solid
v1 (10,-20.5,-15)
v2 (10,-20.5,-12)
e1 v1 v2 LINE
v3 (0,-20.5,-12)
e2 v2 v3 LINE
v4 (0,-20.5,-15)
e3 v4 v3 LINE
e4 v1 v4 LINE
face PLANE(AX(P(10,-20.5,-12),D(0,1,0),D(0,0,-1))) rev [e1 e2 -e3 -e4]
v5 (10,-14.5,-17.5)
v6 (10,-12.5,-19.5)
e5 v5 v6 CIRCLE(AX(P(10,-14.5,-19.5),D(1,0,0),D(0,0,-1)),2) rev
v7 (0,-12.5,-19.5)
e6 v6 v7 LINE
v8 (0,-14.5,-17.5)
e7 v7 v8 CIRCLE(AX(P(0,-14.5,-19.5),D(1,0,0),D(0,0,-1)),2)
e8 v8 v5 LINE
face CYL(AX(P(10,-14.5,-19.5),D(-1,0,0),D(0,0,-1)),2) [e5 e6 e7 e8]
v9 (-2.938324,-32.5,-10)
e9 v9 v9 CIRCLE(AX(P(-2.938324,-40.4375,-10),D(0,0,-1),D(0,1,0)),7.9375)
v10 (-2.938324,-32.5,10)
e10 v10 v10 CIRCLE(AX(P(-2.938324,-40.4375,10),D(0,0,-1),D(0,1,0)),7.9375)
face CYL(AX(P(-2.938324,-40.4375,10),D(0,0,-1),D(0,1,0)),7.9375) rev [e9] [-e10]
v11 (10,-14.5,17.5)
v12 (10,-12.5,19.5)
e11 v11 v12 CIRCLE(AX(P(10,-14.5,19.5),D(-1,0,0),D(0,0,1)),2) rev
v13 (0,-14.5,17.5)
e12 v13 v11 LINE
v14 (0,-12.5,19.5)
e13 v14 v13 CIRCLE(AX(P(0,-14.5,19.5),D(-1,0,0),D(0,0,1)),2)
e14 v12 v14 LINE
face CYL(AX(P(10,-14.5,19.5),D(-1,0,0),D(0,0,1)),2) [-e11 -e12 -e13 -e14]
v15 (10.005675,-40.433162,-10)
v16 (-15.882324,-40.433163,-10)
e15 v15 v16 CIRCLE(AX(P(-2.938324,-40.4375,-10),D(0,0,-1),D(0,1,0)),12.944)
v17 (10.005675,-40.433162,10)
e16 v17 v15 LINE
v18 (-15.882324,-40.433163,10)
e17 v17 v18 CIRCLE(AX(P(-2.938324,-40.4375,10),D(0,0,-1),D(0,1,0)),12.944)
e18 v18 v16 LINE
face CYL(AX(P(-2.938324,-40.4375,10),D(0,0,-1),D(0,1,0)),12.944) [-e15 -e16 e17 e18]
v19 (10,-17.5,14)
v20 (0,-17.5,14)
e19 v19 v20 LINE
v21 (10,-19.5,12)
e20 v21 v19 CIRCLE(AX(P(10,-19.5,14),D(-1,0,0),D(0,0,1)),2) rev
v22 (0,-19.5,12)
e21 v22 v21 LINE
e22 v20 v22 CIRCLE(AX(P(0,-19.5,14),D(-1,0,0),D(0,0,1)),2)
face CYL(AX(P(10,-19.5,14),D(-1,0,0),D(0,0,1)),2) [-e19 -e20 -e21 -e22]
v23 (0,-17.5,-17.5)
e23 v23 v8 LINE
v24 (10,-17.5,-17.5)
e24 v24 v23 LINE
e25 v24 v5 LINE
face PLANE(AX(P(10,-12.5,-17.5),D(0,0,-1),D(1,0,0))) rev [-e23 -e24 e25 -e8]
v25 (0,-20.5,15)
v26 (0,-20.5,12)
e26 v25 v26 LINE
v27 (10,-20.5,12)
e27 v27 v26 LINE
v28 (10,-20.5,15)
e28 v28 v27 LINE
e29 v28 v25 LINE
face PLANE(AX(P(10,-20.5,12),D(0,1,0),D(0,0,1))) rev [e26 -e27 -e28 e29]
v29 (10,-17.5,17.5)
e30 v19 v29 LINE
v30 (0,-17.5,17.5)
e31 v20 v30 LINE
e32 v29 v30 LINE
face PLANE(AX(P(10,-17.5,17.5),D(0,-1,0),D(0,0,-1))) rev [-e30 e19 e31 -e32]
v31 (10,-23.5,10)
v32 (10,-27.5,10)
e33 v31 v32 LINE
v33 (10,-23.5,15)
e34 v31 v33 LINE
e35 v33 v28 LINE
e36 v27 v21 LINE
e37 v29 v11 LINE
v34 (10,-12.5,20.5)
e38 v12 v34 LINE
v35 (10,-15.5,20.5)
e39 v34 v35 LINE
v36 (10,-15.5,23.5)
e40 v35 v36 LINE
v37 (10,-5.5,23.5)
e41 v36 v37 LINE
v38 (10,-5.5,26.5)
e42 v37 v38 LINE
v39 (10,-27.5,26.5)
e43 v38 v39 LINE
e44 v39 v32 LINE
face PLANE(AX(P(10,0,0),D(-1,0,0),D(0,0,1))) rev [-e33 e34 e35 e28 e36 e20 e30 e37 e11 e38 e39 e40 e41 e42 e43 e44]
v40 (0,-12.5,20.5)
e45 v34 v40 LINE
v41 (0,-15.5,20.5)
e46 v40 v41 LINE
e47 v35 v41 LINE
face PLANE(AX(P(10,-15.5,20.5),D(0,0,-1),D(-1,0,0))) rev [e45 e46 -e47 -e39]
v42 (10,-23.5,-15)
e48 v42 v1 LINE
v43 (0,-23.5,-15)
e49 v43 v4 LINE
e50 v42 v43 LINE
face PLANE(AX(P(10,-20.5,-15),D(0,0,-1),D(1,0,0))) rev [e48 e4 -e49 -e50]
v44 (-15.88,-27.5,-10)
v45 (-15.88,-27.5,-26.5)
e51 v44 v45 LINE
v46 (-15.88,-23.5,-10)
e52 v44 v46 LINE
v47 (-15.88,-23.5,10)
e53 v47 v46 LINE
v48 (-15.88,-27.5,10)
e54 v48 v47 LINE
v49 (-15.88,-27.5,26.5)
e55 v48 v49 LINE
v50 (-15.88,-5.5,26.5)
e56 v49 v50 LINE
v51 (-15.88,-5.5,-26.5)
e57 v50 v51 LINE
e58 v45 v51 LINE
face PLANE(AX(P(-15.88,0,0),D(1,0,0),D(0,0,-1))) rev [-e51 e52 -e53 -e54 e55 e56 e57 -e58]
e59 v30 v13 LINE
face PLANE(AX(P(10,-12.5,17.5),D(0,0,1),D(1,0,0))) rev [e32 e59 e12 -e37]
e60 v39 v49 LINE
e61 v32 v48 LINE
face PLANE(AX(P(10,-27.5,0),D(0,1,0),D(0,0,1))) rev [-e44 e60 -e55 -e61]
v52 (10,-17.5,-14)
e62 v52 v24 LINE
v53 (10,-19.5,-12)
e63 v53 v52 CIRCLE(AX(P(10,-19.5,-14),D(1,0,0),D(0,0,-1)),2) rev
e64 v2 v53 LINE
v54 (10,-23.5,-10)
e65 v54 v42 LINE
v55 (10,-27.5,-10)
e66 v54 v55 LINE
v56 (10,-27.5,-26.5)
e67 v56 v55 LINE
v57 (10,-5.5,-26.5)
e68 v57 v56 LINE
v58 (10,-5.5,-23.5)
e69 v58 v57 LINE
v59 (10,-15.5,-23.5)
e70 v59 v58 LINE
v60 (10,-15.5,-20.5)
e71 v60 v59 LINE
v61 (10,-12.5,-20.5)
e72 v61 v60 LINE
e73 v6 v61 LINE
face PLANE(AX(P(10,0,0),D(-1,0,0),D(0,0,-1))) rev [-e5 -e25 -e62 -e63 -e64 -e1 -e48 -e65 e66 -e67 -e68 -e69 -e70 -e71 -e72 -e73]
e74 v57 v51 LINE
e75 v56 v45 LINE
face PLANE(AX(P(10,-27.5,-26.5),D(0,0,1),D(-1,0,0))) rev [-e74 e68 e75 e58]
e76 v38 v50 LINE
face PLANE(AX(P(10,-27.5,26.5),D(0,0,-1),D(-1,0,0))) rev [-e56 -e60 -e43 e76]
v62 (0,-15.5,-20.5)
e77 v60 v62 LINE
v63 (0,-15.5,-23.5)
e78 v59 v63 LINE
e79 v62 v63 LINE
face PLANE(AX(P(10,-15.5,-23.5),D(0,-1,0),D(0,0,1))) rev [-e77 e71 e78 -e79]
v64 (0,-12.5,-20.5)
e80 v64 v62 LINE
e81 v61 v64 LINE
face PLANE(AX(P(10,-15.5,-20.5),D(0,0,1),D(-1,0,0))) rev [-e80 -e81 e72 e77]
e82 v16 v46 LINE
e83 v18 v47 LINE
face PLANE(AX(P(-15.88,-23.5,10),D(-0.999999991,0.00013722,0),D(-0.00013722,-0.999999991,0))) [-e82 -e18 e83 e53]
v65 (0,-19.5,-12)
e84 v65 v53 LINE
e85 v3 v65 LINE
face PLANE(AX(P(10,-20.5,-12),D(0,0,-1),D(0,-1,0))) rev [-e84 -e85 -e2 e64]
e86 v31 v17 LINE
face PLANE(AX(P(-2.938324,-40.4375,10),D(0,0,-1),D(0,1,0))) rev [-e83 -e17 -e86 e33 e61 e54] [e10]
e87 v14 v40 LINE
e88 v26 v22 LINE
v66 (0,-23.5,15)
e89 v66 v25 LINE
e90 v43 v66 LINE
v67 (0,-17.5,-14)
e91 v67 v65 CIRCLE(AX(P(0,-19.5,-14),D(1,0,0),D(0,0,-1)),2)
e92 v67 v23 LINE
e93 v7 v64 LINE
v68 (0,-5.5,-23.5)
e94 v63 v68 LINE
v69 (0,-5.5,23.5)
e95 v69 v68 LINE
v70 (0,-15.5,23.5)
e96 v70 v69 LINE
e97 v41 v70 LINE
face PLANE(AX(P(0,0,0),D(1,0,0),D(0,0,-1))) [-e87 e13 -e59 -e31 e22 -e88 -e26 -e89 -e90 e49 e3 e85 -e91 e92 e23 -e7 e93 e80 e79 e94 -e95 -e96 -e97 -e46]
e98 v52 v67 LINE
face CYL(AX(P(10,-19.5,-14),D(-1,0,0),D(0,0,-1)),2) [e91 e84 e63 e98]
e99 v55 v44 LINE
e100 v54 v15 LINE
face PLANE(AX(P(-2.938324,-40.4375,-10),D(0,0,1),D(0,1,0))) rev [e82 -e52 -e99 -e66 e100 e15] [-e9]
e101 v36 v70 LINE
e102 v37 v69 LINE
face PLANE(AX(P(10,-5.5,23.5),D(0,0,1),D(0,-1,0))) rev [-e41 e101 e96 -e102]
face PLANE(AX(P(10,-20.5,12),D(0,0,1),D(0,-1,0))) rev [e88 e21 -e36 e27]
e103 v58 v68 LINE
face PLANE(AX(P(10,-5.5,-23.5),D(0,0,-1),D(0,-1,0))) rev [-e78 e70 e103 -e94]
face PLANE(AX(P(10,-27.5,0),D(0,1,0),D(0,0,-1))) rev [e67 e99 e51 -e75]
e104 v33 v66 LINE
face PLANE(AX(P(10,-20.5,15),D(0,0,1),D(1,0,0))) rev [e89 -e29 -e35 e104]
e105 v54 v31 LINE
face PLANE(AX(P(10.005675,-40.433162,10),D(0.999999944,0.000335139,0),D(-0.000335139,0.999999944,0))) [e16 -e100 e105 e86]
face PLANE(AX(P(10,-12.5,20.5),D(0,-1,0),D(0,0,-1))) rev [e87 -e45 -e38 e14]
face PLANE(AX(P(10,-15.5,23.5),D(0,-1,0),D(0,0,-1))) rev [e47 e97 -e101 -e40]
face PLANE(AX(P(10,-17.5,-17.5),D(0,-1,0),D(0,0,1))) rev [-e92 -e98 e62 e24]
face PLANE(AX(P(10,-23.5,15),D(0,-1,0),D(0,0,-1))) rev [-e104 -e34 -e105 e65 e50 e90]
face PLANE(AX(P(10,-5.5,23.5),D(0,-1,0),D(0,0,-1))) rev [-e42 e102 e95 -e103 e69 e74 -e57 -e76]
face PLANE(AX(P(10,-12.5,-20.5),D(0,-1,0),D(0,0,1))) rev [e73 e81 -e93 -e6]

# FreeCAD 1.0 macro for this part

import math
import FreeCAD as App
import Part
import Sketcher
from FreeCAD import Vector
Q = App.Units.Quantity


def edges_at(feature, points):
    """Names of the edges that pass closest to the given points."""
    edges = feature.Shape.Edges
    near = lambda p: min(range(len(edges)), key=lambda i: edges[i].distToShape(Part.Vertex(*p))[0])
    return sorted({f"Edge{near(p) + 1}" for p in points})

doc = App.newDocument("Part")
body = doc.addObject("PartDesign::Body", "Body")

# Sketch on YZ plane
sketch1 = body.newObject("Sketcher::SketchObject", "Sketch")
sketch1.AttachmentSupport = (doc.getObject("YZ_Plane"), [""])
sketch1.MapMode = "FlatFace"
sketch1.addGeometry([
    Part.LineSegment(Vector(-5.5, 26.5, 0), Vector(-27.5, 26.5, 0)),  # 0
    Part.LineSegment(Vector(-27.5, 26.5, 0), Vector(-27.5, 0, 0)),  # 1
    Part.LineSegment(Vector(-27.5, 0, 0), Vector(-23.5, 0, 0)),  # 2
    Part.LineSegment(Vector(-23.5, 0, 0), Vector(-23.5, 15, 0)),  # 3
    Part.LineSegment(Vector(-23.5, 15, 0), Vector(-20.5, 15, 0)),  # 4
    Part.LineSegment(Vector(-20.5, 15, 0), Vector(-20.5, 12, 0)),  # 5
    Part.LineSegment(Vector(-20.5, 12, 0), Vector(-17.5, 12, 0)),  # 6
    Part.LineSegment(Vector(-17.5, 12, 0), Vector(-17.5, 17.5, 0)),  # 7
    Part.LineSegment(Vector(-17.5, 17.5, 0), Vector(-12.5, 17.5, 0)),  # 8
    Part.LineSegment(Vector(-12.5, 17.5, 0), Vector(-12.5, 20.5, 0)),  # 9
    Part.LineSegment(Vector(-12.5, 20.5, 0), Vector(-15.5, 20.5, 0)),  # 10
    Part.LineSegment(Vector(-15.5, 20.5, 0), Vector(-15.5, 23.5, 0)),  # 11
    Part.LineSegment(Vector(-15.5, 23.5, 0), Vector(-5.5, 23.5, 0)),  # 12
    Part.LineSegment(Vector(-5.5, 23.5, 0), Vector(-5.5, 26.5, 0)),  # 13
], False)
sketch1.addConstraint([
    Sketcher.Constraint("Coincident", 0, 2, 1, 1),
    Sketcher.Constraint("Coincident", 1, 2, 2, 1),
    Sketcher.Constraint("Coincident", 2, 2, 3, 1),
    Sketcher.Constraint("Coincident", 3, 2, 4, 1),
    Sketcher.Constraint("Coincident", 4, 2, 5, 1),
    Sketcher.Constraint("Coincident", 5, 2, 6, 1),
    Sketcher.Constraint("Coincident", 6, 2, 7, 1),
    Sketcher.Constraint("Coincident", 7, 2, 8, 1),
    Sketcher.Constraint("Coincident", 8, 2, 9, 1),
    Sketcher.Constraint("Coincident", 9, 2, 10, 1),
    Sketcher.Constraint("Coincident", 10, 2, 11, 1),
    Sketcher.Constraint("Coincident", 11, 2, 12, 1),
    Sketcher.Constraint("Coincident", 12, 2, 13, 1),
    Sketcher.Constraint("Coincident", 13, 2, 0, 1),
    Sketcher.Constraint("Horizontal", 0),
    Sketcher.Constraint("Vertical", 1),
    Sketcher.Constraint("Horizontal", 2),
    Sketcher.Constraint("Vertical", 3),
    Sketcher.Constraint("Horizontal", 4),
    Sketcher.Constraint("Vertical", 5),
    Sketcher.Constraint("Horizontal", 6),
    Sketcher.Constraint("Vertical", 7),
    Sketcher.Constraint("Horizontal", 8),
    Sketcher.Constraint("Vertical", 9),
    Sketcher.Constraint("Horizontal", 10),
    Sketcher.Constraint("Vertical", 11),
    Sketcher.Constraint("Horizontal", 12),
    Sketcher.Constraint("Vertical", 13),
    Sketcher.Constraint("PointOnObject", 1, 2, -1),
    Sketcher.Constraint("Equal", 4, 6),
    Sketcher.Constraint("Equal", 6, 10),
    Sketcher.Constraint("Equal", 10, 5),
    Sketcher.Constraint("Equal", 5, 9),
    Sketcher.Constraint("Equal", 9, 11),
    Sketcher.Constraint("Equal", 11, 13),
    Sketcher.Constraint("DistanceX", 0, 2, 0, 1, Q("22 mm")),
    Sketcher.Constraint("DistanceX", 2, 1, 2, 2, Q("4 mm")),
    Sketcher.Constraint("DistanceX", 4, 1, 4, 2, Q("3 mm")),
    Sketcher.Constraint("DistanceX", 8, 1, 8, 2, Q("5 mm")),
    Sketcher.Constraint("DistanceY", 3, 1, 3, 2, Q("15 mm")),
    Sketcher.Constraint("DistanceY", 1, 2, 1, 1, Q("26.5 mm")),
    Sketcher.Constraint("DistanceX", 0, 2, -1, 1, Q("27.5 mm")),
])
pad1 = body.newObject("PartDesign::Pad", "Pad")
pad1.Profile = sketch1
pad1.Length = 10
doc.recompute()

fillet = body.newObject("PartDesign::Fillet", "Fillet")
fillet.Base = (pad1, edges_at(pad1, [(5, -12.5, 17.5), (5, -17.5, 12)]))
fillet.Radius = 2

# Sketch on YZ plane
sketch2 = body.newObject("Sketcher::SketchObject", "Sketch001")
sketch2.AttachmentSupport = (doc.getObject("YZ_Plane"), [""])
sketch2.MapMode = "FlatFace"
sketch2.addGeometry([
    Part.LineSegment(Vector(-6, 0, 0), Vector(-28, 0, 0)),
    Part.LineSegment(Vector(-28, 0, 0), Vector(-28, 26, 0)),
    Part.LineSegment(Vector(-28, 26, 0), Vector(-6, 26, 0)),
    Part.LineSegment(Vector(-6, 26, 0), Vector(-6, 0, 0)),
], False)
sketch2.addConstraint([
    Sketcher.Constraint("Coincident", 0, 2, 1, 1),
    Sketcher.Constraint("Coincident", 1, 2, 2, 1),
    Sketcher.Constraint("Coincident", 2, 2, 3, 1),
    Sketcher.Constraint("Coincident", 3, 2, 0, 1),
    Sketcher.Constraint("Horizontal", 0),
    Sketcher.Constraint("Vertical", 1),
    Sketcher.Constraint("Horizontal", 2),
    Sketcher.Constraint("Vertical", 3),
    Sketcher.Constraint("PointOnObject", 0, 2, -1),
    Sketcher.Constraint("DistanceX", 0, 2, 0, 1, Q("22 mm")),
    Sketcher.Constraint("DistanceY", 1, 1, 1, 2, Q("26.5 mm")),
    Sketcher.Constraint("DistanceX", 0, 2, -1, 1, Q("27.5 mm")),
])
pad2 = body.newObject("PartDesign::Pad", "Pad001")
pad2.Profile = sketch2
pad2.Length = 15.88
pad2.Reversed = True

# Sketch on XY plane
sketch3 = body.newObject("Sketcher::SketchObject", "Sketch002")
sketch3.AttachmentSupport = (doc.getObject("XY_Plane"), [""])
sketch3.MapMode = "FlatFace"
sketch3.addGeometry([
    Part.LineSegment(Vector(10, -24, 0), Vector(10, -40, 0)),  # 0
    Part.ArcOfCircle(Part.Circle(Vector(-3, -40, 0), Vector(0, 0, 1), 13), math.radians(180), math.radians(360)),  # 1
    Part.LineSegment(Vector(-16, -40, 0), Vector(-16, -24, 0)),  # 2
    Part.LineSegment(Vector(-16, -24, 0), Vector(10, -24, 0)),  # 3
    Part.Circle(Vector(-3, -40, 0), Vector(0, 0, 1), 8),  # 4
], False)
sketch3.addConstraint([
    Sketcher.Constraint("Tangent", 0, 2, 1, 2),
    Sketcher.Constraint("Coincident", 1, 1, 2, 1),
    Sketcher.Constraint("Coincident", 2, 2, 3, 1),
    Sketcher.Constraint("Coincident", 3, 2, 0, 1),
    Sketcher.Constraint("Horizontal", 3),
    Sketcher.Constraint("Coincident", 4, 3, 1, 3),
    Sketcher.Constraint("Horizontal", 0, 2, 1, 1),
    Sketcher.Constraint("Diameter", 4, Q("15.875 mm")),
    Sketcher.Constraint("DistanceX", -1, 1, 3, 2, Q("10 mm")),
    Sketcher.Constraint("Radius", 1, Q("12.944 mm")),
    Sketcher.Constraint("DistanceX", 3, 1, 3, 2, Q("25.88 mm")),
    Sketcher.Constraint("DistanceY", 2, 2, -1, 1, Q("23.5 mm")),
    Sketcher.Constraint("DistanceY", 1, 3, -1, 1, Q("40.4375 mm")),
    Sketcher.Constraint("DistanceY", 0, 2, -1, 1, Q("40.433162 mm")),
])
pad3 = body.newObject("PartDesign::Pad", "Pad002")
pad3.Profile = sketch3
pad3.Length = 10
body2 = doc.addObject("PartDesign::Body", "Body001")
doc.recompute()

body2.BaseFeature = body
doc.recompute()

mirroring = doc.addObject("Part::Mirroring", "Mirroring")
mirroring.Source = body
mirroring.Base = Vector(10, -23.5, 0)
mirroring.Normal = Vector(0, 0, 1)
body3 = doc.addObject("PartDesign::Body", "Body002")
body3.BaseFeature = mirroring
boolean = body2.newObject("PartDesign::Boolean", "Boolean")
boolean.Type = "Fuse"
boolean.addObjects([body3])
doc.recompute()
mirroring.Visibility = False

doc.recompute()
